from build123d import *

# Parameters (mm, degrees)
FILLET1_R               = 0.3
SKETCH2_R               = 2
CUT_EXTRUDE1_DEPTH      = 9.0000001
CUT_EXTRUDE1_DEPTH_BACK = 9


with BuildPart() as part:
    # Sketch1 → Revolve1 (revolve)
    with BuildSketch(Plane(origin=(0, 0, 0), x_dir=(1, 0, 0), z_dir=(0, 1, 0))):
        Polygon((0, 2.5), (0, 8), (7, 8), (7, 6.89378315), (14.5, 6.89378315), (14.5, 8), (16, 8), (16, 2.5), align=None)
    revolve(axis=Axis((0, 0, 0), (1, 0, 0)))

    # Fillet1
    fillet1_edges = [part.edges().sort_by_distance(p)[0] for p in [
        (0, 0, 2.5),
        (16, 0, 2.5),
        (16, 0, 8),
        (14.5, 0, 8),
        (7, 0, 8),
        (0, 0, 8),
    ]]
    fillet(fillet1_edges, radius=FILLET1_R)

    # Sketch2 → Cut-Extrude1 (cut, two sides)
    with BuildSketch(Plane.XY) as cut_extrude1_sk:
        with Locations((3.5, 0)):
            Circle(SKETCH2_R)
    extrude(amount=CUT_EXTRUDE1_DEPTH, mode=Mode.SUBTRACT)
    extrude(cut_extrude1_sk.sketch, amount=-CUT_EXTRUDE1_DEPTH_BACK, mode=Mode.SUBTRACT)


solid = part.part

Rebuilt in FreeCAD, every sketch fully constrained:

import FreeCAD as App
import Part
import Sketcher
from FreeCAD import Vector


def edges_at(feature, points):
    """Names of the edges that pass closest to the given points."""
    edges = feature.Shape.Edges
    near = lambda p: min(range(len(edges)), key=lambda i: edges[i].distToShape(Part.Vertex(*p))[0])
    return sorted({f"Edge{near(p) + 1}" for p in points})


def add_polygon(sketch, points):
    """Adds a closed chain of lines whose ends are joined by coincident constraints."""
    first, n = sketch.GeometryCount, len(points)
    for a, b in zip(points, points[1:] + points[:1]):
        sketch.addGeometry(Part.LineSegment(App.Vector(*a, 0), App.Vector(*b, 0)), False)
    for i in range(n):
        sketch.addConstraint(Sketcher.Constraint("Coincident", first + i, 2, first + (i + 1) % n, 1))

doc = App.newDocument("Part")
body = doc.addObject("PartDesign::Body", "Body")

# Sketch on XZ plane
sketch1 = body.newObject("Sketcher::SketchObject", "Sketch")
sketch1.AttachmentSupport = (doc.getObject("XZ_Plane"), [""])
sketch1.MapMode = "FlatFace"
add_polygon(sketch1, [(0, -8), (0, -2.5), (16, -2.5), (16, -8), (14.5, -8), (14.5, -6.9), (7, -6.9), (7, -8)])  # lines 0-7
sketch1.addConstraint([
    Sketcher.Constraint("Vertical", 0),
    Sketcher.Constraint("Horizontal", 1),
    Sketcher.Constraint("Vertical", 2),
    Sketcher.Constraint("Horizontal", 3),
    Sketcher.Constraint("Vertical", 4),
    Sketcher.Constraint("Horizontal", 5),
    Sketcher.Constraint("Vertical", 6),
    Sketcher.Constraint("Horizontal", 7),
    Sketcher.Constraint("PointOnObject", 0, 2, -2),
    Sketcher.Constraint("Horizontal", 3, 2, 6, 2),
    Sketcher.Constraint("DistanceX", 1, 1, 1, 2, 16.0),
    Sketcher.Constraint("DistanceX", 7, 2, 7, 1, 7.0),
    Sketcher.Constraint("DistanceX", 3, 2, 3, 1, 1.5),
    Sketcher.Constraint("DistanceY", 0, 1, 0, 2, 5.5),
    Sketcher.Constraint("DistanceY", 2, 2, -1, 1, 8.0),
    Sketcher.Constraint("DistanceY", 4, 1, 4, 2, 1.106217),
])
revolution = body.newObject("PartDesign::Revolution", "Revolution")
revolution.Profile = sketch1
revolution.ReferenceAxis = (sketch1, ["H_Axis"])
revolution.Angle = 360
doc.recompute()

fillet = body.newObject("PartDesign::Fillet", "Fillet")
fillet.Base = (revolution, edges_at(revolution, [
    (0, 0, 2.5),
    (16, 0, 2.5),
    (16, 0, 8),
    (14.5, 0, 8),
    (7, 0, 8),
    (0, 0, 8),
]))
fillet.Radius = 0.3

# Sketch on XY plane
sketch2 = body.newObject("Sketcher::SketchObject", "Sketch001")
sketch2.AttachmentSupport = (doc.getObject("XY_Plane"), [""])
sketch2.MapMode = "FlatFace"
sketch2.addGeometry(Part.Circle(Vector(3.5, 0, 0), Vector(0, 0, 1), 2), False)
sketch2.addConstraint([
    Sketcher.Constraint("PointOnObject", 0, 3, -1),
    Sketcher.Constraint("Diameter", 0, 4.0),
    Sketcher.Constraint("DistanceX", -1, 1, 0, 3, 3.5),
])
pocket1 = body.newObject("PartDesign::Pocket", "Pocket")
pocket1.Profile = sketch2
pocket1.Type = "ThroughAll"
pocket1.Midplane = True

doc.recompute()
